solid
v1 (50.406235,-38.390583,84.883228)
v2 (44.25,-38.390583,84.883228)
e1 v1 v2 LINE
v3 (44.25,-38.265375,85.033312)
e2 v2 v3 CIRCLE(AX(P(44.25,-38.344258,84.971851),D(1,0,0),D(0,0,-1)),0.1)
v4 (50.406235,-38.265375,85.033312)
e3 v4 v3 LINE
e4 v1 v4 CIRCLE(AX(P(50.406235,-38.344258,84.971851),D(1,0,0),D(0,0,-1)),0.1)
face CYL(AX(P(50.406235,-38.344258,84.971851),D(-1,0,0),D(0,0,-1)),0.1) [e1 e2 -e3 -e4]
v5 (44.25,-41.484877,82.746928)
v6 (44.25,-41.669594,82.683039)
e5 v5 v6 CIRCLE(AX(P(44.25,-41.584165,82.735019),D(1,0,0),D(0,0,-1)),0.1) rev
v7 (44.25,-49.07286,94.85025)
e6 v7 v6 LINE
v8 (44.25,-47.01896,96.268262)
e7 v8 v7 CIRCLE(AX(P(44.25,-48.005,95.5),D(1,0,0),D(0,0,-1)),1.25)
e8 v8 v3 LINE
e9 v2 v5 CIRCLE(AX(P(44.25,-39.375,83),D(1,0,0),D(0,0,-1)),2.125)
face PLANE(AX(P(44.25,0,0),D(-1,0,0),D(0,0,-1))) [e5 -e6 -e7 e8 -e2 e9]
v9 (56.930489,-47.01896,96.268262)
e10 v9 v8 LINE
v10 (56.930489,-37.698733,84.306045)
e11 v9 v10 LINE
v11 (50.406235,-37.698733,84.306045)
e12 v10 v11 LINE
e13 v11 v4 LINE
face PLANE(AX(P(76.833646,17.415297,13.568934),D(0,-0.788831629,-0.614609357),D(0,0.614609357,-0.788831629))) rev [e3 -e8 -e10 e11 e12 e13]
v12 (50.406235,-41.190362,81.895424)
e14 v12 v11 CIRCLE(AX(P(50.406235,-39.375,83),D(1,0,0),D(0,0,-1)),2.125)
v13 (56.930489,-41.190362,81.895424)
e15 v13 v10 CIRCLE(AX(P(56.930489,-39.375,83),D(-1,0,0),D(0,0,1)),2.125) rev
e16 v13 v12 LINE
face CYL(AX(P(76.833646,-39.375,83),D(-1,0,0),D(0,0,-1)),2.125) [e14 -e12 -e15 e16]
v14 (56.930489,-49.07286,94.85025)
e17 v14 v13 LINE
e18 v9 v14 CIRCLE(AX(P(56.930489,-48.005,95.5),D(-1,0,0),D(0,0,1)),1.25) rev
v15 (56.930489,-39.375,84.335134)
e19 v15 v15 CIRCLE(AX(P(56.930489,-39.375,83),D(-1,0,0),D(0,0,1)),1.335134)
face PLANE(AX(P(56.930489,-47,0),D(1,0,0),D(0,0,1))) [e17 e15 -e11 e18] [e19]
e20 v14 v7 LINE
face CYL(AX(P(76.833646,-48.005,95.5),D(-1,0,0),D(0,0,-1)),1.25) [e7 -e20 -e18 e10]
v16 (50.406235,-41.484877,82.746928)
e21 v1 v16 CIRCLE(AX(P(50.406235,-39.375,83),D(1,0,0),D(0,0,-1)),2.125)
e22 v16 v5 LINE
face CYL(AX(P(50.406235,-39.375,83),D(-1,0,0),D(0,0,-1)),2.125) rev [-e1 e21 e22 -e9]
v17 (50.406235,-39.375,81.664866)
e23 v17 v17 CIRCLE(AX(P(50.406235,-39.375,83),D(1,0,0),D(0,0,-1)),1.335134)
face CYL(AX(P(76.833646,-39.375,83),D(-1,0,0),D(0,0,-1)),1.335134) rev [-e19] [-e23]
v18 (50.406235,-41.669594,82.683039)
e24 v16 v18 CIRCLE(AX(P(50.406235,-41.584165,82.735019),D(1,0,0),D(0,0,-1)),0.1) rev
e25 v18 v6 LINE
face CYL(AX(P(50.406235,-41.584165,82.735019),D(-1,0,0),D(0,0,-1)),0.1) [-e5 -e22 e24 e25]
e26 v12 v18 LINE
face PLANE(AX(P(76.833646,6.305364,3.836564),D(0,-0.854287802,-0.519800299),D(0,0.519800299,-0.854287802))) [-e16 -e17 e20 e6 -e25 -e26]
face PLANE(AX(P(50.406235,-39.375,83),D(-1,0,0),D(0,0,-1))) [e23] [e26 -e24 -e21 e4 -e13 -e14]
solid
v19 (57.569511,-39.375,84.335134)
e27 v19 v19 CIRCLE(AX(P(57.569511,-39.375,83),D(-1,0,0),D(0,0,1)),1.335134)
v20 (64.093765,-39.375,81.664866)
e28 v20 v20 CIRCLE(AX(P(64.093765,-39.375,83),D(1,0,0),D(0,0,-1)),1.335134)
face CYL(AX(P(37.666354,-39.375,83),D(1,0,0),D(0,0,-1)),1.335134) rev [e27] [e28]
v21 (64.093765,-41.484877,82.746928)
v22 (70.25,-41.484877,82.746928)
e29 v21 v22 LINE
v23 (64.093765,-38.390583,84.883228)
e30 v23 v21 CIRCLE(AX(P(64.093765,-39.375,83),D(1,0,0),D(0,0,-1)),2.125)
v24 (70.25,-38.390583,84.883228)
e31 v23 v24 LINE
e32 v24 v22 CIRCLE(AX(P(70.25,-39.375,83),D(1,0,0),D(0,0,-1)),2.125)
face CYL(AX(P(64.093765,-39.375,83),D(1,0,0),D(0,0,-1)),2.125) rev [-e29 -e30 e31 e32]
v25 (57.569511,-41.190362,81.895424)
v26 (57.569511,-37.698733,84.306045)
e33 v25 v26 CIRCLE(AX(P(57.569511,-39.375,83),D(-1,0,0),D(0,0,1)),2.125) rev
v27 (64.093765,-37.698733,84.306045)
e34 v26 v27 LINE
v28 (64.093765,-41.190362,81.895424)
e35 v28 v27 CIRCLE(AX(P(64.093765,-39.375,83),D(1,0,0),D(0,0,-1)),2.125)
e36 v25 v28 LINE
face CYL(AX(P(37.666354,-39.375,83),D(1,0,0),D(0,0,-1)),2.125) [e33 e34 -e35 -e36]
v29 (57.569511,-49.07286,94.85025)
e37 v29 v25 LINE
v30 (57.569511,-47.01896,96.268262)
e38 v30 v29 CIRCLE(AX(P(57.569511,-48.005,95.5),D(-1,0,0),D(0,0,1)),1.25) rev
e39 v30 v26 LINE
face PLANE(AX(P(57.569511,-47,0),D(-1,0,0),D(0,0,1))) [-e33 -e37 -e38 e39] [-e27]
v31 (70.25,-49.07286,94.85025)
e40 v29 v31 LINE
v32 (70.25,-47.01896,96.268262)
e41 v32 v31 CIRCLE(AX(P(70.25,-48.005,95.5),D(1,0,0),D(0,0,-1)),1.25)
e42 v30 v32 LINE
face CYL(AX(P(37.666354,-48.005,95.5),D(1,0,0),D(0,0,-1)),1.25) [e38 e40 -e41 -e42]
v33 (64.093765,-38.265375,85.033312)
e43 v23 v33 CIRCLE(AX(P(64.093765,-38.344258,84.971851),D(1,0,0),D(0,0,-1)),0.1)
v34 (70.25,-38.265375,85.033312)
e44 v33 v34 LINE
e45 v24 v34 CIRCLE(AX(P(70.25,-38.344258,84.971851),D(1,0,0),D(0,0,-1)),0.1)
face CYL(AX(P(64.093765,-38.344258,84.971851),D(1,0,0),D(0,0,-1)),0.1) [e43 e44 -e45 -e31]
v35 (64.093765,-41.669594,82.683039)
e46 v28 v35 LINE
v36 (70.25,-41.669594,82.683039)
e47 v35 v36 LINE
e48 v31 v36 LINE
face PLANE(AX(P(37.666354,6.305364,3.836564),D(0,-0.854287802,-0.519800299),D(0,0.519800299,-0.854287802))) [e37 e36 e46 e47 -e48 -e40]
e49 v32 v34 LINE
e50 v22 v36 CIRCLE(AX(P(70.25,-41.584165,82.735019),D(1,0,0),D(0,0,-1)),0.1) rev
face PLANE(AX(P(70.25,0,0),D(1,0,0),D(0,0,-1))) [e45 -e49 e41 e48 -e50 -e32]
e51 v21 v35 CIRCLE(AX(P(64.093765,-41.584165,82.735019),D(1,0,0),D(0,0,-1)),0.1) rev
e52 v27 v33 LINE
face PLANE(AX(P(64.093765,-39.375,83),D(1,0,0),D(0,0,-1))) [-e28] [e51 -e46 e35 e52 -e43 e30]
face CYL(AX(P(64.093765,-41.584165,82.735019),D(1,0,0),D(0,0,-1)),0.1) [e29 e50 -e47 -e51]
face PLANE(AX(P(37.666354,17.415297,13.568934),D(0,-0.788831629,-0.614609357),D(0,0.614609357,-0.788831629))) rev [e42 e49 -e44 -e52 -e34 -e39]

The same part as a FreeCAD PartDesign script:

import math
import FreeCAD as App
import Part
import Sketcher

V = App.Vector
Q = App.Units.Quantity

doc = App.newDocument("Part")
body = doc.addObject("PartDesign::Body", "Body")

# Sketch on YZ plane
sketch1 = doc.addObject("Sketcher::SketchObject", "Sketch")
body.addObject(sketch1)
sketch1.AttachmentSupport = (doc.YZ_Plane, [""])
sketch1.MapMode = "FlatFace"
sketch1.AttachmentOffset = App.Placement(V(0, 0, 70.25), App.Rotation())
sketch1.addGeometry(Part.ArcOfCircle(Part.Circle(V(-39.4, 83, 0), V(0, 0, 1), 2.1), math.radians(-149), math.radians(0)), False)
sketch1.addGeometry(Part.ArcOfCircle(Part.Circle(V(-39.4, 83, 0), V(0, 0, 1), 2.1), math.radians(0), math.radians(38)), False)
sketch1.addGeometry(Part.LineSegment(V(-37.7, 84.3, 0), V(-47, 96.3, 0)), False)
sketch1.addGeometry(Part.ArcOfCircle(Part.Circle(V(-48, 95.5, 0), V(0, 0, 1), 1.2), math.radians(38), math.radians(211)), False)
sketch1.addGeometry(Part.LineSegment(V(-49.1, 94.9, 0), V(-41.6, 82.6, 0)), False)
sketch1.addGeometry(Part.LineSegment(V(-41.6, 82.6, 0), V(-41.2, 81.9, 0)), False)
sketch1.addGeometry(Part.Circle(V(-39.4, 83, 0), V(0, 0, 1), 1.3), False)
sketch1.addConstraint(Sketcher.Constraint("Tangent", 0, 2, 1, 1))
sketch1.addConstraint(Sketcher.Constraint("Tangent", 1, 2, 2, 1))
sketch1.addConstraint(Sketcher.Constraint("Tangent", 2, 2, 3, 1))
sketch1.addConstraint(Sketcher.Constraint("Tangent", 3, 2, 4, 1))
sketch1.addConstraint(Sketcher.Constraint("Coincident", 4, 2, 5, 1))
sketch1.addConstraint(Sketcher.Constraint("Tangent", 5, 2, 0, 1))
sketch1.addConstraint(Sketcher.Constraint("Coincident", 6, 3, 0, 3))
sketch1.addConstraint(Sketcher.Constraint("Equal", 0, 1))
sketch1.addConstraint(Sketcher.Constraint("Parallel", 4, 5))
sketch1.addConstraint(Sketcher.Constraint("Horizontal", 6, 3, 0, 2))
sketch1.addConstraint(Sketcher.Constraint("Radius", 3, Q("1.25 mm")))
sketch1.addConstraint(Sketcher.Constraint("DistanceY", -1, 1, 0, 3, Q("83 mm")))
sketch1.addConstraint(Sketcher.Constraint("Radius", 0, Q("2.125 mm")))
sketch1.addConstraint(Sketcher.Constraint("DistanceY", -1, 1, 3, 3, Q("95.5 mm")))
sketch1.addConstraint(Sketcher.Constraint("DistanceX", 0, 2, -1, 1, Q("37.25 mm")))
sketch1.addConstraint(Sketcher.Constraint("DistanceX", 3, 3, 0, 3, Q("8.63 mm")))
sketch1.addConstraint(Sketcher.Constraint("Diameter", 6, Q("2.670268 mm")))
sketch1.addConstraint(Sketcher.Constraint("Distance", 5, Q("0.773489 mm")))
pad1 = doc.addObject("PartDesign::Pad", "Pad")
body.addObject(pad1)
pad1.Profile = sketch1
pad1.Length = 12.680489
pad1.Reversed = True

# Sketch on YZ plane
sketch2 = doc.addObject("Sketcher::SketchObject", "Sketch001")
body.addObject(sketch2)
sketch2.AttachmentSupport = (doc.YZ_Plane, [""])
sketch2.MapMode = "FlatFace"
sketch2.AttachmentOffset = App.Placement(V(0, 0, 70.25), App.Rotation())
sketch2.addGeometry(Part.Circle(V(-39.4, 83, 0), V(0, 0, 1), 2.1), False)
sketch2.addGeometry(Part.Circle(V(-39.4, 83, 0), V(0, 0, 1), 1.3), False)
sketch2.addConstraint(Sketcher.Constraint("Coincident", 1, 3, 0, 3))
sketch2.addConstraint(Sketcher.Constraint("Diameter", 0, Q("4.25 mm")))
sketch2.addConstraint(Sketcher.Constraint("DistanceY", -1, 1, 0, 3, Q("83 mm")))
sketch2.addConstraint(Sketcher.Constraint("Diameter", 1, Q("2.670268 mm")))
sketch2.addConstraint(Sketcher.Constraint("DistanceX", 0, 3, -1, 1, Q("39.375 mm")))
pocket1 = doc.addObject("PartDesign::Pocket", "Pocket")
body.addObject(pocket1)
pocket1.Profile = sketch2
pocket1.Length = 6.156235

# Sketch on YZ plane
sketch3 = doc.addObject("Sketcher::SketchObject", "Sketch002")
body.addObject(sketch3)
sketch3.AttachmentSupport = (doc.YZ_Plane, [""])
sketch3.MapMode = "FlatFace"
sketch3.AttachmentOffset = App.Placement(V(0, 0, 70.25), App.Rotation())
sketch3.addGeometry(Part.LineSegment(V(-37.45, 84.07, 0), V(-37.45, 85.74, 0)), False)
sketch3.addGeometry(Part.LineSegment(V(-37.45, 85.74, 0), V(-38.57, 85.74, 0)), False)
sketch3.addGeometry(Part.LineSegment(V(-38.57, 85.74, 0), V(-38.57, 85.43, 0)), False)
sketch3.addGeometry(Part.LineSegment(V(-38.57, 85.43, 0), V(-38.27, 85.03, 0)), False)
sketch3.addGeometry(Part.ArcOfCircle(Part.Circle(V(-38.34, 84.97, 0), V(0, 0, 1), 0.1), math.radians(-118), math.radians(38)), False)
sketch3.addGeometry(Part.ArcOfCircle(Part.Circle(V(-39.37, 83, 0), V(0, 0, 1), 2.12), math.radians(62.4), math.radians(67.83)), False)
sketch3.addGeometry(Part.LineSegment(V(-38.57, 84.97, 0), V(-38.57, 84.07, 0)), False)
sketch3.addGeometry(Part.LineSegment(V(-38.57, 84.07, 0), V(-37.45, 84.07, 0)), False)
sketch3.addGeometry(Part.LineSegment(V(-40.83, 83.07, 0), V(-41.5, 83.07, 0)), False)
sketch3.addGeometry(Part.ArcOfCircle(Part.Circle(V(-39.37, 83, 0), V(0, 0, 1), 2.13), math.radians(178.04), math.radians(186.84)), False)
sketch3.addGeometry(Part.ArcOfCircle(Part.Circle(V(-41.58, 82.74, 0), V(0, 0, 1), 0.1), math.radians(-149), math.radians(7)), False)
sketch3.addGeometry(Part.LineSegment(V(-41.67, 82.68, 0), V(-41.91, 83.07, 0)), False)
sketch3.addGeometry(Part.LineSegment(V(-41.91, 83.07, 0), V(-42.13, 83.07, 0)), False)
sketch3.addGeometry(Part.LineSegment(V(-42.13, 83.07, 0), V(-42.13, 81.51, 0)), False)
sketch3.addGeometry(Part.LineSegment(V(-42.13, 81.51, 0), V(-40.83, 81.51, 0)), False)
sketch3.addGeometry(Part.LineSegment(V(-40.83, 81.51, 0), V(-40.83, 83.07, 0)), False)
sketch3.addConstraint(Sketcher.Constraint("Coincident", 0, 2, 1, 1))
sketch3.addConstraint(Sketcher.Constraint("Coincident", 1, 2, 2, 1))
sketch3.addConstraint(Sketcher.Constraint("Coincident", 2, 2, 3, 1))
sketch3.addConstraint(Sketcher.Constraint("Tangent", 3, 2, 4, 2))
sketch3.addConstraint(Sketcher.Constraint("Tangent", 4, 1, 5, 1))
sketch3.addConstraint(Sketcher.Constraint("Coincident", 5, 2, 6, 1))
sketch3.addConstraint(Sketcher.Constraint("Coincident", 6, 2, 7, 1))
sketch3.addConstraint(Sketcher.Constraint("Coincident", 7, 2, 0, 1))
sketch3.addConstraint(Sketcher.Constraint("Coincident", 8, 2, 9, 1))
sketch3.addConstraint(Sketcher.Constraint("Tangent", 9, 2, 10, 2))
sketch3.addConstraint(Sketcher.Constraint("Tangent", 10, 1, 11, 1))
sketch3.addConstraint(Sketcher.Constraint("Coincident", 11, 2, 12, 1))
sketch3.addConstraint(Sketcher.Constraint("Coincident", 12, 2, 13, 1))
sketch3.addConstraint(Sketcher.Constraint("Coincident", 13, 2, 14, 1))
sketch3.addConstraint(Sketcher.Constraint("Coincident", 14, 2, 15, 1))
sketch3.addConstraint(Sketcher.Constraint("Coincident", 15, 2, 8, 1))
sketch3.addConstraint(Sketcher.Constraint("Vertical", 0))
sketch3.addConstraint(Sketcher.Constraint("Horizontal", 1))
sketch3.addConstraint(Sketcher.Constraint("Vertical", 2))
sketch3.addConstraint(Sketcher.Constraint("Vertical", 6))
sketch3.addConstraint(Sketcher.Constraint("Horizontal", 7))
sketch3.addConstraint(Sketcher.Constraint("Horizontal", 8))
sketch3.addConstraint(Sketcher.Constraint("Horizontal", 12))
sketch3.addConstraint(Sketcher.Constraint("Vertical", 13))
sketch3.addConstraint(Sketcher.Constraint("Horizontal", 14))
sketch3.addConstraint(Sketcher.Constraint("Vertical", 15))
sketch3.addConstraint(Sketcher.Constraint("Coincident", 9, 3, 5, 3))
sketch3.addConstraint(Sketcher.Constraint("Equal", 5, 9))
sketch3.addConstraint(Sketcher.Constraint("Equal", 4, 10))
sketch3.addConstraint(Sketcher.Constraint("Horizontal", 8, 2, 11, 2))
sketch3.addConstraint(Sketcher.Constraint("Vertical", 2, 2, 5, 2))
sketch3.addConstraint(Sketcher.Constraint("Radius", 4, Q("0.1 mm")))
sketch3.addConstraint(Sketcher.Constraint("DistanceX", 14, 1, 14, 2, Q("1.300002 mm")))
sketch3.addConstraint(Sketcher.Constraint("DistanceY", -1, 1, 5, 3, Q("83 mm")))
sketch3.addConstraint(Sketcher.Constraint("Radius", 5, Q("2.125 mm")))
sketch3.addConstraint(Sketcher.Constraint("DistanceX", 5, 3, -1, 1, Q("39.375 mm")))
sketch3.addConstraint(Sketcher.Constraint("DistanceY", 0, 1, 0, 2, Q("1.670239 mm")))
sketch3.addConstraint(Sketcher.Constraint("DistanceX", 1, 2, 1, 1, Q("1.126424 mm")))
sketch3.addConstraint(Sketcher.Constraint("DistanceX", 8, 2, 8, 1, Q("0.672004 mm")))
sketch3.addConstraint(Sketcher.Constraint("DistanceX", 12, 2, 12, 1, Q("0.220016 mm")))
sketch3.addConstraint(Sketcher.Constraint("DistanceY", 2, 2, 2, 1, Q("0.309427 mm")))
sketch3.addConstraint(Sketcher.Constraint("DistanceY", 6, 2, 6, 1, Q("0.900372 mm")))
sketch3.addConstraint(Sketcher.Constraint("DistanceY", 13, 2, 13, 1, Q("1.560002 mm")))
sketch3.addConstraint(Sketcher.Constraint("DistanceY", -1, 1, 4, 3, Q("84.971851 mm")))
sketch3.addConstraint(Sketcher.Constraint("DistanceY", -1, 1, 10, 3, Q("82.735019 mm")))
sketch3.addConstraint(Sketcher.Constraint("DistanceX", 1, 2, -1, 1, Q("38.573169 mm")))
sketch3.addConstraint(Sketcher.Constraint("DistanceY", -1, 1, 8, 2, Q("83.072779 mm")))
pocket2 = doc.addObject("PartDesign::Pocket", "Pocket001")
body.addObject(pocket2)
pocket2.Profile = sketch3
pocket2.Type = "TwoLengths"
pocket2.Length = 110.304219
pocket2.Length2 = 6.156235
pocket2.Reversed = True
body2 = doc.addObject("PartDesign::Body", "Body001")
doc.recompute()

mirroring = doc.addObject("Part::Mirroring", "Mirroring")
mirroring.Source = body
mirroring.Base = V(57.25, 0, 0)
mirroring.Normal = V(1, 0, 0)
body2.BaseFeature = mirroring
doc.recompute()
mirroring.Visibility = False

doc.recompute()
